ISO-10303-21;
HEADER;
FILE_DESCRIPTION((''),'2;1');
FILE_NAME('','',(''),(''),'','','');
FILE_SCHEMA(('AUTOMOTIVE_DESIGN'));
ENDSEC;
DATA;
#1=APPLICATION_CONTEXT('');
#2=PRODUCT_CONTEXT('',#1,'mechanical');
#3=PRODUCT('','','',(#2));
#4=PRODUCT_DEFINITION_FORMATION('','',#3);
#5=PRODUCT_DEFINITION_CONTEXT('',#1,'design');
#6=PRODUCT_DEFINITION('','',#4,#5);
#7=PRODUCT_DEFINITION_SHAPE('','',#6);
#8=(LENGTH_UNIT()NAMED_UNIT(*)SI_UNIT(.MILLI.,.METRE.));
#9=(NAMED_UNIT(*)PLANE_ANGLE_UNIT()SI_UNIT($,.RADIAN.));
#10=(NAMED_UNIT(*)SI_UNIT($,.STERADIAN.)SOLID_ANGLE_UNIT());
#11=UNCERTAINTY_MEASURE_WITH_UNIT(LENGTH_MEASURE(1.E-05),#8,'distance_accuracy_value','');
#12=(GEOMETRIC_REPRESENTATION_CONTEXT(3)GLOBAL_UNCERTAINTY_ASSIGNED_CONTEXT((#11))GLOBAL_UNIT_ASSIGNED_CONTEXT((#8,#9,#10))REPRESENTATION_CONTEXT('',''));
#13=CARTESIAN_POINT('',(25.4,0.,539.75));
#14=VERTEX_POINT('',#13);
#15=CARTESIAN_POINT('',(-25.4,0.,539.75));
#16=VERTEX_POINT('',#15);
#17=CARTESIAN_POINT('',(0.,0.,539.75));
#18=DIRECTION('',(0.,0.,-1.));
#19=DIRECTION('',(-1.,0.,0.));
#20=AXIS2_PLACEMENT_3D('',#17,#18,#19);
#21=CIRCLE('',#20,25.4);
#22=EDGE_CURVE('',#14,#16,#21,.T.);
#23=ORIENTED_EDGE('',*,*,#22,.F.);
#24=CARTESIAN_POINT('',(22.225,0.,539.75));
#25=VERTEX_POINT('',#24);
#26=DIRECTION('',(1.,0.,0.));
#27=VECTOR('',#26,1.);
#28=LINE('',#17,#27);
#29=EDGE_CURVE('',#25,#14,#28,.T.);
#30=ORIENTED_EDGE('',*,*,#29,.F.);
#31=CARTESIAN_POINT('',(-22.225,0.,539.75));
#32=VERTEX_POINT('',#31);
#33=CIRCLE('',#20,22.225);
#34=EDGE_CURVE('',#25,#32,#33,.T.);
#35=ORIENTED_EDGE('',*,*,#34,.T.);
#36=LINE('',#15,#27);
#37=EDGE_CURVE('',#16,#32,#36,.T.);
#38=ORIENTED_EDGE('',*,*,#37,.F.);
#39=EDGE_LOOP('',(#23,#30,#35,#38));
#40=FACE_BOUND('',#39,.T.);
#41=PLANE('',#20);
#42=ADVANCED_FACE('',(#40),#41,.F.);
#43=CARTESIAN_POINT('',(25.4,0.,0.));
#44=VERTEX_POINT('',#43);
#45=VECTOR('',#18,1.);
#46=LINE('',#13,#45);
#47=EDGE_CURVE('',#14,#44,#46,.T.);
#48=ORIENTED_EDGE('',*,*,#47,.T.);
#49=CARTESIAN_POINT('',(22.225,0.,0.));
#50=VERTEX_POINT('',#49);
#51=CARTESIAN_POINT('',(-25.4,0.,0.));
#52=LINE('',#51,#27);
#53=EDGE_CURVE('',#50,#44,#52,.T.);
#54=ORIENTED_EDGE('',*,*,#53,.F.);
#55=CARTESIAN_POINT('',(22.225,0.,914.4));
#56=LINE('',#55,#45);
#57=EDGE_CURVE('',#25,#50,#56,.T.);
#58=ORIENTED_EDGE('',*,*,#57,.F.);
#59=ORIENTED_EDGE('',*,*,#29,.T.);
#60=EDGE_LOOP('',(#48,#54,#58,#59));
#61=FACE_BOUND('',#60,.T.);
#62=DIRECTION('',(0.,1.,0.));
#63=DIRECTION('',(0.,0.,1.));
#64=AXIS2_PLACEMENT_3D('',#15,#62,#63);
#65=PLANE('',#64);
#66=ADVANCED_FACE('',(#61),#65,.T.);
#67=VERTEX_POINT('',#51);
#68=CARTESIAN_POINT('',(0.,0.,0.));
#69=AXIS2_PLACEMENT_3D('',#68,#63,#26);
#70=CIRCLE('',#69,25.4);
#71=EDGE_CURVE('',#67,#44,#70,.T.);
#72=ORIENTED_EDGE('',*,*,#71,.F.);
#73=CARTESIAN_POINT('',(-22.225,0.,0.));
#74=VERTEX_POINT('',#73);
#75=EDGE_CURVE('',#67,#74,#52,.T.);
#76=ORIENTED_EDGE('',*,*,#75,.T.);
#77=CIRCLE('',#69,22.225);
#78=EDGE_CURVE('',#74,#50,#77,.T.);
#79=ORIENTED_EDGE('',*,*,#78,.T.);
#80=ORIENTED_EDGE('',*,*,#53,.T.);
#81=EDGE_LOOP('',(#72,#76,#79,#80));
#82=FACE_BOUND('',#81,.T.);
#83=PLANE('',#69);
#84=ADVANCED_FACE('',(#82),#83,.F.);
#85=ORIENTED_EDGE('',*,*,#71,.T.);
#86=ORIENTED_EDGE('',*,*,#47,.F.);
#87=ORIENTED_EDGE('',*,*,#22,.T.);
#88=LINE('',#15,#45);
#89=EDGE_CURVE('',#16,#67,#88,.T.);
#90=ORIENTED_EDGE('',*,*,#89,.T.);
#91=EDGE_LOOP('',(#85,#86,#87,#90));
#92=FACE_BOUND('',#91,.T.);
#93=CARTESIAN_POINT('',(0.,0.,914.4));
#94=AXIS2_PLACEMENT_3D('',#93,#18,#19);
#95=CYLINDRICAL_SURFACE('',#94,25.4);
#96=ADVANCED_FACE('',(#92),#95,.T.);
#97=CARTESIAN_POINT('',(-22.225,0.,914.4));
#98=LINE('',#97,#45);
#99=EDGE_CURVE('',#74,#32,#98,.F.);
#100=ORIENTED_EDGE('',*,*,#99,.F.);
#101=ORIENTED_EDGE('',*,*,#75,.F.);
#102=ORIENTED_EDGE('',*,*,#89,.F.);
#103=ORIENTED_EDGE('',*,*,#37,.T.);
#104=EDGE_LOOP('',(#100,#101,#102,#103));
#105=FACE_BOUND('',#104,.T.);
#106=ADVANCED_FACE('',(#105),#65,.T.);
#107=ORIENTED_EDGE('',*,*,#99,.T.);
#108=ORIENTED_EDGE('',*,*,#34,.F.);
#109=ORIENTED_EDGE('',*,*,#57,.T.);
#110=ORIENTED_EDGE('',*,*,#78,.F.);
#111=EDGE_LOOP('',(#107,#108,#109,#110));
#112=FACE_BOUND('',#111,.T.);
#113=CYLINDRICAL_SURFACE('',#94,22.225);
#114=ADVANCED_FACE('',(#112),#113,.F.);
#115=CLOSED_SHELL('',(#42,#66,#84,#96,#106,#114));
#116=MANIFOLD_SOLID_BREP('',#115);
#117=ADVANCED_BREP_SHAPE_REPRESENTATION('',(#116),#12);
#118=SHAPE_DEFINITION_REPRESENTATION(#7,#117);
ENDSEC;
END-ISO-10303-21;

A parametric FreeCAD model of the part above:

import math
import FreeCAD as App
import Part
import Sketcher
from FreeCAD import Vector
Q = App.Units.Quantity

doc = App.newDocument("Part")
body = doc.addObject("PartDesign::Body", "Body")

sketch1 = body.newObject("Sketcher::SketchObject", "Sketch")
sketch1.AttachmentSupport = (doc.getObject("XY_Plane"), [""])
sketch1.MapMode = "FlatFace"
sketch1.addGeometry(Part.Circle(Vector(0, 0, 0), Vector(0, 0, 1), 25), False)
sketch1.addGeometry(Part.Circle(Vector(0, 0, 0), Vector(0, 0, 1), 22), False)
sketch1.addConstraint(Sketcher.Constraint("Coincident", 0, 3, -1, 1))
sketch1.addConstraint(Sketcher.Constraint("Coincident", 1, 3, -1, 1))
sketch1.addConstraint(Sketcher.Constraint("Diameter", 0, Q("2 in")))
sketch1.addConstraint(Sketcher.Constraint("Diameter", 1, Q("1.75 in")))
pad1 = body.newObject("PartDesign::Pad", "Pad")
pad1.Profile = sketch1
pad1.Length = Q("36 in")

sketch2 = body.newObject("Sketcher::SketchObject", "Sketch001")
sketch2.AttachmentSupport = (doc.getObject("XY_Plane"), [""])
sketch2.MapMode = "FlatFace"
sketch2.AttachmentOffset = App.Placement(Vector(0, 0, 21.25 * 25.4), App.Rotation())
sketch2.addGeometry(Part.Circle(Vector(0, 0, 0), Vector(0, 0, 1), 25), False)
sketch2.addConstraint(Sketcher.Constraint("Coincident", 0, 3, -1, 1))
sketch2.addConstraint(Sketcher.Constraint("Diameter", 0, Q("2 in")))
pocket1 = body.newObject("PartDesign::Pocket", "Pocket")
pocket1.Profile = sketch2
pocket1.Type = "ThroughAll"
pocket1.Reversed = True

sketch3 = body.newObject("Sketcher::SketchObject", "Sketch002")
sketch3.AttachmentSupport = (doc.getObject("XY_Plane"), [""])
sketch3.MapMode = "FlatFace"
sketch3.addGeometry(Part.LineSegment(Vector(-25, 0, 0), Vector(25, 0, 0)), False)
sketch3.addGeometry(Part.ArcOfCircle(Part.Circle(Vector(0, 0, 0), Vector(0, 0, 1), 25), math.radians(0), math.radians(180)), False)
sketch3.addConstraint(Sketcher.Constraint("Coincident", 0, 1, 1, 2))
sketch3.addConstraint(Sketcher.Constraint("Coincident", 1, 1, 0, 2))
sketch3.addConstraint(Sketcher.Constraint("Horizontal", 0))
sketch3.addConstraint(Sketcher.Constraint("Coincident", 1, 3, -1, 1))
sketch3.addConstraint(Sketcher.Constraint("PointOnObject", 0, 1, -1))
sketch3.addConstraint(Sketcher.Constraint("Radius", 1, Q("1 in")))
pocket2 = body.newObject("PartDesign::Pocket", "Pocket001")
pocket2.Profile = sketch3
pocket2.Type = "ThroughAll"
pocket2.Reversed = True

doc.recompute()
